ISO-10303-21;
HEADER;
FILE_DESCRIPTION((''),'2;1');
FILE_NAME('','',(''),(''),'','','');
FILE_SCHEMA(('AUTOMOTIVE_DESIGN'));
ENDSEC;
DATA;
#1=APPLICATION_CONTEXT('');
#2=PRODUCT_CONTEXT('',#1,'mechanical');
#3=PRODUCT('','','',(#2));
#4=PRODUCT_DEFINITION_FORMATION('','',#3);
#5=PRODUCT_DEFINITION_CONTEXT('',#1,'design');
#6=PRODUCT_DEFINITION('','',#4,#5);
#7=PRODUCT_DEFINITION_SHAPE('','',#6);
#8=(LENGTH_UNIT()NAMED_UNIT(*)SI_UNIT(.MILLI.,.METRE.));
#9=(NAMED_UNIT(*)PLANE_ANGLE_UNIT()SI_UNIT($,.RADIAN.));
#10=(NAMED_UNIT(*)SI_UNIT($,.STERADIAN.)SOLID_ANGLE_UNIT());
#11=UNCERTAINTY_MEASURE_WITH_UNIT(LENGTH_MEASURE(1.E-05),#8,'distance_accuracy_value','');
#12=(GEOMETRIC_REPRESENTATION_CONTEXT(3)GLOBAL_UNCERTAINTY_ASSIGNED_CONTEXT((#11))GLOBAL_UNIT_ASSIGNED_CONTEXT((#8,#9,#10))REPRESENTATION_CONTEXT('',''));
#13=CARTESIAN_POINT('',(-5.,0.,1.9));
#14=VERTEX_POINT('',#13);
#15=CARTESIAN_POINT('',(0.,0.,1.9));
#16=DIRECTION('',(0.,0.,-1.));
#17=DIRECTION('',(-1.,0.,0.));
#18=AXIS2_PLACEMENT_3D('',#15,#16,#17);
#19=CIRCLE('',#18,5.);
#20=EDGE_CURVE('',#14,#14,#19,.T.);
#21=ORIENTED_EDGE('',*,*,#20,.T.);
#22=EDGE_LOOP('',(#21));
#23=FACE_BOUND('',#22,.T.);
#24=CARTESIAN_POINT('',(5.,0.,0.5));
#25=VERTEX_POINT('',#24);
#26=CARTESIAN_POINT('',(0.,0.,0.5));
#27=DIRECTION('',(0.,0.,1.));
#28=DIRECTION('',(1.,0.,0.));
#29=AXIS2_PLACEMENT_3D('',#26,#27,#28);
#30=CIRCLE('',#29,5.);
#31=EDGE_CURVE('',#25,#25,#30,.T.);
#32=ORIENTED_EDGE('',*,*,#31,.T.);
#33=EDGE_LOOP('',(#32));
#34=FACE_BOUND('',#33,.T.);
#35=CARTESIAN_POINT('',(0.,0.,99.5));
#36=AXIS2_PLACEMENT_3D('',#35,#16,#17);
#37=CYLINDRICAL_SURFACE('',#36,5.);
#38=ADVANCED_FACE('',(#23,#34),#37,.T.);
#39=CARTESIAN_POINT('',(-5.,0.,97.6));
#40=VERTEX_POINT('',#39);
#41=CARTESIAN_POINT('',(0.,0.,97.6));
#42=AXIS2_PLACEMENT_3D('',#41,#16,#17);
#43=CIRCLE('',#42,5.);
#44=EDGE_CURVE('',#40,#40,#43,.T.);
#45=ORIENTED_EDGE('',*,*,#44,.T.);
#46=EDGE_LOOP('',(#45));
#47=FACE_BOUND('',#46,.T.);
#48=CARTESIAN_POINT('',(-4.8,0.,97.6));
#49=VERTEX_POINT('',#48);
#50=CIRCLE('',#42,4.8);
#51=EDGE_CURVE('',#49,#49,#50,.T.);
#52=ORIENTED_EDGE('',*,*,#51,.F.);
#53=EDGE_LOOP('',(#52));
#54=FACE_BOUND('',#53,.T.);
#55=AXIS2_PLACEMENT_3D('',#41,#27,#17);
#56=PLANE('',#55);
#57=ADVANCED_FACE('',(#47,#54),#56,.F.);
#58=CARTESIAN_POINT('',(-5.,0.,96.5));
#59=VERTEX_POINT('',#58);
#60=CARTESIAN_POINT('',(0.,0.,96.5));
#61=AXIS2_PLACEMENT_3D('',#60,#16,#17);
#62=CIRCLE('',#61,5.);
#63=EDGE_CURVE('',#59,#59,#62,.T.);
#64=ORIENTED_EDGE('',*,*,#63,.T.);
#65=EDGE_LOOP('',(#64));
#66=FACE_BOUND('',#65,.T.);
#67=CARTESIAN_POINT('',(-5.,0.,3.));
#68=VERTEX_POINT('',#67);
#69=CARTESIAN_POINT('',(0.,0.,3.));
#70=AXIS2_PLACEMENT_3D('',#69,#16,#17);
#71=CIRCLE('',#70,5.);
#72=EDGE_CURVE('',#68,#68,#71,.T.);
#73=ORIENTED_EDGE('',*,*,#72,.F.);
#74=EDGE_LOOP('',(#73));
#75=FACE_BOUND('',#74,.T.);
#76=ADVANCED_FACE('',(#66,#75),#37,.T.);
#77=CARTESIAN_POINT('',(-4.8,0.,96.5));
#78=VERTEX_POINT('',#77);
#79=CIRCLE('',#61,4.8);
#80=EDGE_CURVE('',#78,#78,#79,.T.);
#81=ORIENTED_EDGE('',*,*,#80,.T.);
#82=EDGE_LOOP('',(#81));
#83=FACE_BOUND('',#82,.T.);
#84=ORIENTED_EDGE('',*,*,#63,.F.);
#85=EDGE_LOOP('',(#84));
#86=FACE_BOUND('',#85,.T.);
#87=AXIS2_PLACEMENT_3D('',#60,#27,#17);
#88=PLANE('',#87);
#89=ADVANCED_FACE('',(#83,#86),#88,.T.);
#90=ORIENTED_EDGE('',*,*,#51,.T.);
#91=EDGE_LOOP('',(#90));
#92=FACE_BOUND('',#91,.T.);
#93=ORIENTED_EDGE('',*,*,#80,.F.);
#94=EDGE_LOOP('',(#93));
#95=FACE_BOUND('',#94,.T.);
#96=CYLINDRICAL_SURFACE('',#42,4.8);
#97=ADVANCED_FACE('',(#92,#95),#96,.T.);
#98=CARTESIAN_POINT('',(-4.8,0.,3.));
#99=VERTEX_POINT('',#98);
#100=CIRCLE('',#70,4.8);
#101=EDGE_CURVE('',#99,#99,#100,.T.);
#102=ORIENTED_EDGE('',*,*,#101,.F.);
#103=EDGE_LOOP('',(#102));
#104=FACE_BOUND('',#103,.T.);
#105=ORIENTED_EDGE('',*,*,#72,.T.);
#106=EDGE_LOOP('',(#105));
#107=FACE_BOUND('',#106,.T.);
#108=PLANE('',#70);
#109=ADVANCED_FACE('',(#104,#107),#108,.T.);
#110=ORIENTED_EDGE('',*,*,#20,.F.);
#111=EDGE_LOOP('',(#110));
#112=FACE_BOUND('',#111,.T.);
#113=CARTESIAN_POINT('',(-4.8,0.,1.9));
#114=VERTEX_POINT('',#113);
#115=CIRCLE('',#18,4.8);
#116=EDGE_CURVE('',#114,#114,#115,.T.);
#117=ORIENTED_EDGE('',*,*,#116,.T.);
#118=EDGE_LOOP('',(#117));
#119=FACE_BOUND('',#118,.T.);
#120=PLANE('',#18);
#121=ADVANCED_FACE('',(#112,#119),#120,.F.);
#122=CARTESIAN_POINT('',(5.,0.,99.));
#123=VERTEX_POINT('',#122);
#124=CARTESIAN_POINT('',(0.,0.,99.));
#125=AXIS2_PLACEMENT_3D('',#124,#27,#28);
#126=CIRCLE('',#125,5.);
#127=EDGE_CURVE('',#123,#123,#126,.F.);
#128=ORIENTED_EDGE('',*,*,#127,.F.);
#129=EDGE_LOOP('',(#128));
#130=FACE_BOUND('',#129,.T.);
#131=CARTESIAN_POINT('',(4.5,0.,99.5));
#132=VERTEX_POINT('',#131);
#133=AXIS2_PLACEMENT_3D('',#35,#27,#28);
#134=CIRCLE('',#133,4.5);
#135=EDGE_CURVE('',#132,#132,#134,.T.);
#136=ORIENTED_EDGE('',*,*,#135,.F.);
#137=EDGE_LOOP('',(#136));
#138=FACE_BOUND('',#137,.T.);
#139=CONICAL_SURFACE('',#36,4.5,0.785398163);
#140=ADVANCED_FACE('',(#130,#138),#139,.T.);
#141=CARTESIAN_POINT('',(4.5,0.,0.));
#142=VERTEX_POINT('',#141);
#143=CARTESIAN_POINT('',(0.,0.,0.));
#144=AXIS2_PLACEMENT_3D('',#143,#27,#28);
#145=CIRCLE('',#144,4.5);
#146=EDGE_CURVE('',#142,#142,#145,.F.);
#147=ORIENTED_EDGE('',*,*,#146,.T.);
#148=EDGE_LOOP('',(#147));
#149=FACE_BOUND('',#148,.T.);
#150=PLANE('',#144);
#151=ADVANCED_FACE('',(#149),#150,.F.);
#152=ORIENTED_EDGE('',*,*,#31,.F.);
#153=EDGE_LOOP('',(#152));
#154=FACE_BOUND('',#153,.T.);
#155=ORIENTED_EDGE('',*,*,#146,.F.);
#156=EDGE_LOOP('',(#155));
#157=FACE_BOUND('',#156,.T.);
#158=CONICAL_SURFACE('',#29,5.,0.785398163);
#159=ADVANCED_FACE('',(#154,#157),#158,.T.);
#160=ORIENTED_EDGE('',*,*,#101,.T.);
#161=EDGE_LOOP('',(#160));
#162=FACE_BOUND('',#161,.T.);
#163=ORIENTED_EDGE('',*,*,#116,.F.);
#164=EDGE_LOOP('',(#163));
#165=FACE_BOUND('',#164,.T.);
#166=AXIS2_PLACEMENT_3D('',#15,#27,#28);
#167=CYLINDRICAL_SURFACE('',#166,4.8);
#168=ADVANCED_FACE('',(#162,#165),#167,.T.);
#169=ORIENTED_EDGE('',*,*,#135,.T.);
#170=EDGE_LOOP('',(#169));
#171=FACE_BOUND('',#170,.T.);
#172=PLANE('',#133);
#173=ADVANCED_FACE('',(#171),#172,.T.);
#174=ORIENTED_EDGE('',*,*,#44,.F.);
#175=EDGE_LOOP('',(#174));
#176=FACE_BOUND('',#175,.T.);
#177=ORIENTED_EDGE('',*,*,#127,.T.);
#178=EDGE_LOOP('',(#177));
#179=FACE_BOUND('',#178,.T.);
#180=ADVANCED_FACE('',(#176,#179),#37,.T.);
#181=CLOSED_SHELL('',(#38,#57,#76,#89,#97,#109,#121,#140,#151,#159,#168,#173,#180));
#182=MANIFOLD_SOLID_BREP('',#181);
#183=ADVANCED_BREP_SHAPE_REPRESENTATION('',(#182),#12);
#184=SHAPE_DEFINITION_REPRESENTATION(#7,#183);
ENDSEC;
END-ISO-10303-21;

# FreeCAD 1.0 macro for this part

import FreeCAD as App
import Part
import Sketcher


def edges_at(feature, points):
    """Names of the edges that pass closest to the given points."""
    edges = feature.Shape.Edges
    near = lambda p: min(range(len(edges)), key=lambda i: edges[i].distToShape(Part.Vertex(*p))[0])
    return sorted({f"Edge{near(p) + 1}" for p in points})

doc = App.newDocument("Part")
body = doc.addObject("PartDesign::Body", "Body")

# Sketch on XY plane
sketch1 = body.newObject("Sketcher::SketchObject", "Sketch")
sketch1.AttachmentSupport = (doc.getObject("XY_Plane"), [""])
sketch1.MapMode = "FlatFace"
sketch1.addGeometry(Part.Circle(App.Vector(0, 0, 0), App.Vector(0, 0, 1), 5), False)
sketch1.addConstraint([
    Sketcher.Constraint("Coincident", 0, 3, -1, 1),
    Sketcher.Constraint("Diameter", 0, 10.0),
])
pad1 = body.newObject("PartDesign::Pad", "Pad")
pad1.Profile = sketch1
pad1.Length = 99.5
doc.recompute()

chamfer = body.newObject("PartDesign::Chamfer", "Chamfer")
chamfer.Base = (pad1, edges_at(pad1, [(-5, 0, 0), (-5, 0, 99.5)]))
chamfer.Size = 0.5

# Sketch on XY plane
sketch2 = body.newObject("Sketcher::SketchObject", "Sketch001")
sketch2.AttachmentSupport = (doc.getObject("XY_Plane"), [""])
sketch2.MapMode = "FlatFace"
sketch2.AttachmentOffset = App.Placement(App.Vector(0, 0, 1.9), App.Rotation())
sketch2.addGeometry([
    Part.Circle(App.Vector(0, 0, 0), App.Vector(0, 0, 1), 5),
    Part.Circle(App.Vector(0, 0, 0), App.Vector(0, 0, 1), 4.8),
], False)
sketch2.addConstraint([
    Sketcher.Constraint("Coincident", 0, 3, -1, 1),
    Sketcher.Constraint("Coincident", 1, 3, -1, 1),
    Sketcher.Constraint("Diameter", 0, 10.0),
    Sketcher.Constraint("Diameter", 1, 9.6),
])
pocket1 = body.newObject("PartDesign::Pocket", "Pocket")
pocket1.Profile = sketch2
pocket1.Length = 1.1
pocket1.Reversed = True
doc.recompute()

datumplane = body.newObject("PartDesign::Plane", "DatumPlane")
datumplane.AttachmentSupport = (doc.getObject("XY_Plane"), [""])
datumplane.MapMode = "FlatFace"
datumplane.AttachmentOffset = App.Placement(App.Vector(0, 0, 49.75), App.Rotation())
mirrored = body.newObject("PartDesign::Mirrored", "Mirrored")
mirrored.Originals = [pocket1]
mirrored.MirrorPlane = (datumplane, [""])
body.Tip = mirrored

doc.recompute()
